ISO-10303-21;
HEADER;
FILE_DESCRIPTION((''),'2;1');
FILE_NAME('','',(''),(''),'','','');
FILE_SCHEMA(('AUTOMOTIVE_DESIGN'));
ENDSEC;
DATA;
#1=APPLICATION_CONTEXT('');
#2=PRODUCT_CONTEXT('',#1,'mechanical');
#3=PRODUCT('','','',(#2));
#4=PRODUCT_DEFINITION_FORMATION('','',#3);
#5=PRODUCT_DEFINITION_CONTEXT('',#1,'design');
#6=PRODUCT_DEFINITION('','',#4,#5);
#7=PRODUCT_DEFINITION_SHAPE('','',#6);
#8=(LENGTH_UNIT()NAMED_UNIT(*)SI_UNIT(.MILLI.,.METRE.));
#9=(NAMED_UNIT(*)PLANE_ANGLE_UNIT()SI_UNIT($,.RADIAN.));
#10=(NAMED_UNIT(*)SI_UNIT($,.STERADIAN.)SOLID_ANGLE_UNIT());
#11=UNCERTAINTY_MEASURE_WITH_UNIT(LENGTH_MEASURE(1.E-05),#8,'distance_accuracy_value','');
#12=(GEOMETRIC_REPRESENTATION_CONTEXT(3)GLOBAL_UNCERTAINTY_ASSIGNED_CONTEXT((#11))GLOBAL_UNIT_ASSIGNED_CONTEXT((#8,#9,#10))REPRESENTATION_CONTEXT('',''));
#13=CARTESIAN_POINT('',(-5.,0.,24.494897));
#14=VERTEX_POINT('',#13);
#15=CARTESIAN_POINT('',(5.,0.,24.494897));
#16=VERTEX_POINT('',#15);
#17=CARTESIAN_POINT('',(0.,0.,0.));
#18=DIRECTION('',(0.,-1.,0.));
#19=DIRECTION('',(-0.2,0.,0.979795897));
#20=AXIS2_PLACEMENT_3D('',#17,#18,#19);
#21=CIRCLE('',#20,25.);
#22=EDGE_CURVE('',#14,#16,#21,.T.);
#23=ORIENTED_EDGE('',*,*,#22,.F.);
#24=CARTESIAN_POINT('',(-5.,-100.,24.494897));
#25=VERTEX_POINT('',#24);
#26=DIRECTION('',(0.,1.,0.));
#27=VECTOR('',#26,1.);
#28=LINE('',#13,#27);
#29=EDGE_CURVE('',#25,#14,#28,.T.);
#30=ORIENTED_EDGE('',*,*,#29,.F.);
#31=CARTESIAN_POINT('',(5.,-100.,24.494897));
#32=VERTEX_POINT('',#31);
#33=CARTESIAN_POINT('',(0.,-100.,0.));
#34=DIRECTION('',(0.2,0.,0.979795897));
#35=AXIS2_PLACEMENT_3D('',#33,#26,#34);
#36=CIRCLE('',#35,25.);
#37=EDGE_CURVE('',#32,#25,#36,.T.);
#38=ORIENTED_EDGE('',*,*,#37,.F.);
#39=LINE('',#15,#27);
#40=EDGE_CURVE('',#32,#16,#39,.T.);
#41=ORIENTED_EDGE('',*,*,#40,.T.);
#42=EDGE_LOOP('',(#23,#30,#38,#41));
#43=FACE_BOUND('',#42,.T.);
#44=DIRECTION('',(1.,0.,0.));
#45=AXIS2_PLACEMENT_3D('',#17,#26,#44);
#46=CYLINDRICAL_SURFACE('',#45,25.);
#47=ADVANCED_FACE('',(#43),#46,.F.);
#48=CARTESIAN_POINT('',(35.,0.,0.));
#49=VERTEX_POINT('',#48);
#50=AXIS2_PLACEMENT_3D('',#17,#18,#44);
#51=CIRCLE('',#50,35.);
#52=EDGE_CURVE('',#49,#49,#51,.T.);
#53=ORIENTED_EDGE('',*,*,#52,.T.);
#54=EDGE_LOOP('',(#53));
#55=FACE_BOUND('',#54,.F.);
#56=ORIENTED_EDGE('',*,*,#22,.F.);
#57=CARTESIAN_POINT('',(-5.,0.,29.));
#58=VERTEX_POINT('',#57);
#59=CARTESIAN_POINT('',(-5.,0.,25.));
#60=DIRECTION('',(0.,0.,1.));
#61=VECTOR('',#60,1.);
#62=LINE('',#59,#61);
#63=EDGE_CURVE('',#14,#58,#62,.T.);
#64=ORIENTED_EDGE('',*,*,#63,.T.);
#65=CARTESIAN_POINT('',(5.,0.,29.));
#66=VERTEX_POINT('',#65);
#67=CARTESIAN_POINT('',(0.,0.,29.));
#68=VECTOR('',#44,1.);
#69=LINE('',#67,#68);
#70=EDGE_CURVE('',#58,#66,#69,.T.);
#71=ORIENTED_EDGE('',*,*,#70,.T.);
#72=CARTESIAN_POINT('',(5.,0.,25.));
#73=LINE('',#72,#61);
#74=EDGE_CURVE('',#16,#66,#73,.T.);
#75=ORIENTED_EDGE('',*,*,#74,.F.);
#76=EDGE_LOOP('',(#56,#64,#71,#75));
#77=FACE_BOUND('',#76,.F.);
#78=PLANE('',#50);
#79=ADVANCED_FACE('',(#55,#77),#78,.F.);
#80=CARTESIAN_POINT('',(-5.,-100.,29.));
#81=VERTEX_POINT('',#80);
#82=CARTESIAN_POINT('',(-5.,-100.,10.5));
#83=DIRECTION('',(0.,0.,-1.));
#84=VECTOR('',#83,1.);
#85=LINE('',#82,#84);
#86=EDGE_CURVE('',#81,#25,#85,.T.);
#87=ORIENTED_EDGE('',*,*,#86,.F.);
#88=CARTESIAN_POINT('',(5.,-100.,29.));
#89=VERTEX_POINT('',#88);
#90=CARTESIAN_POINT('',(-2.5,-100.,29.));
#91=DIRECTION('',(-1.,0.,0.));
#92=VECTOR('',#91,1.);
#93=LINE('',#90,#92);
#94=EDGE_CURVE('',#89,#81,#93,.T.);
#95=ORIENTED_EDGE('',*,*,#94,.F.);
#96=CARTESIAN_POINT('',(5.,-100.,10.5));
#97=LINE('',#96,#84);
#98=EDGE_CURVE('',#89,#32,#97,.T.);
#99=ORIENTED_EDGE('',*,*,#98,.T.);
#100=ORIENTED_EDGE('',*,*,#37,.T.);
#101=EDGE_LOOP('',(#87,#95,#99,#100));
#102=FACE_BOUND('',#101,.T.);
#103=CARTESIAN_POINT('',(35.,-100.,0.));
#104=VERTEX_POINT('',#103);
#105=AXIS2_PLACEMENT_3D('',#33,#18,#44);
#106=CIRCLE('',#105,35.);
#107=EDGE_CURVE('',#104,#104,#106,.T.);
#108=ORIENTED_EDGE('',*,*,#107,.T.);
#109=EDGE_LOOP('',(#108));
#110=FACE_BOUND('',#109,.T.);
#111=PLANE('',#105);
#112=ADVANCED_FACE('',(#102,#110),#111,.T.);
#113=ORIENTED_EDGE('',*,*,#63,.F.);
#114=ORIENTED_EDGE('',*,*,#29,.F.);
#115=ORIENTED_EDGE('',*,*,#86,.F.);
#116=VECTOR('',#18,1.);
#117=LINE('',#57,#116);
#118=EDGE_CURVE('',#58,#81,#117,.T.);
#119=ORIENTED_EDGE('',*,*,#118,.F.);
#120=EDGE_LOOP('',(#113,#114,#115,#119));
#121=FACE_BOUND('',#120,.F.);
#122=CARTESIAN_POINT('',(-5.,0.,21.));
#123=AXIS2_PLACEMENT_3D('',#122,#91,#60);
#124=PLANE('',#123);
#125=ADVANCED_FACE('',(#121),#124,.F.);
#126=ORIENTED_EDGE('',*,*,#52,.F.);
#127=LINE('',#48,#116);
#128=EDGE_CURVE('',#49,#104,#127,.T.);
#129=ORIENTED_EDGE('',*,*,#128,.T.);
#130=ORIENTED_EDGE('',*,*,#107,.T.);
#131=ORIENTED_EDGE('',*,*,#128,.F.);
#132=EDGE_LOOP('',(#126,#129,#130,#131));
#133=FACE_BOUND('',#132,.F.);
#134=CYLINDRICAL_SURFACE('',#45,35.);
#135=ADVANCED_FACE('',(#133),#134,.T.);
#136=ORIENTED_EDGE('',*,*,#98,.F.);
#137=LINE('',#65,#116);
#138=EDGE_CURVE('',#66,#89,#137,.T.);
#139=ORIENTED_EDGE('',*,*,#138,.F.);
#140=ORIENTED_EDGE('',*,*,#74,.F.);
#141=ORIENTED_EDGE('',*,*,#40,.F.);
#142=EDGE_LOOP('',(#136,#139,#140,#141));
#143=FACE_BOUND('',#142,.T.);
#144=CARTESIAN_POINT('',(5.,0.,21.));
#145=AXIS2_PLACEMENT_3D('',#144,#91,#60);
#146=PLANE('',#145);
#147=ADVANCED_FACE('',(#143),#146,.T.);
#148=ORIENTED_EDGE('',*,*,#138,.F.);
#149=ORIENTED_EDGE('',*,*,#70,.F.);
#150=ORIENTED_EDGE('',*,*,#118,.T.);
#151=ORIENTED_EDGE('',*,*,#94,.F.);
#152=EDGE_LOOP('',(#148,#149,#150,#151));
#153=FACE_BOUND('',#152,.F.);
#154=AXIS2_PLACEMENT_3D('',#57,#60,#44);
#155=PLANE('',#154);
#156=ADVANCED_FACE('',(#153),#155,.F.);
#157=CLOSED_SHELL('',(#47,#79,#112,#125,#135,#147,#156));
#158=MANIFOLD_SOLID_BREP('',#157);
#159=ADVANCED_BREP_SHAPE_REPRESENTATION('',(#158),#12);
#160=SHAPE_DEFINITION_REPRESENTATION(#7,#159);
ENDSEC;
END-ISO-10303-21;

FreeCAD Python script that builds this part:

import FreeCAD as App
import Part
import Sketcher
Q = App.Units.Quantity

doc = App.newDocument("Part")
body = doc.addObject("PartDesign::Body", "Body")

sketch1 = doc.addObject("Sketcher::SketchObject", "Sketch")
body.addObject(sketch1)
sketch1.AttachmentSupport = (doc.XZ_Plane, [""])
sketch1.MapMode = "FlatFace"
sketch1.addGeometry(Part.Circle(App.Vector(0, 0, 0), App.Vector(0, 0, 1), 35), False)
sketch1.addGeometry(Part.Circle(App.Vector(0, 0, 0), App.Vector(0, 0, 1), 25), False)
sketch1.addConstraint(Sketcher.Constraint("Coincident", 0, 3, -1, 1))
sketch1.addConstraint(Sketcher.Constraint("Coincident", 1, 3, -1, 1))
sketch1.addConstraint(Sketcher.Constraint("Diameter", 0, Q("70 mm")))
sketch1.addConstraint(Sketcher.Constraint("Diameter", 1, Q("50 mm")))
pad1 = doc.addObject("PartDesign::Pad", "Pad")
body.addObject(pad1)
pad1.Profile = sketch1
pad1.Length = 100

sketch2 = doc.addObject("Sketcher::SketchObject", "Sketch001")
body.addObject(sketch2)
sketch2.AttachmentSupport = (doc.XZ_Plane, [""])
sketch2.MapMode = "FlatFace"
sketch2.addGeometry(Part.LineSegment(App.Vector(-5, 29, 0), App.Vector(-5, 21, 0)), False)
sketch2.addGeometry(Part.LineSegment(App.Vector(-5, 21, 0), App.Vector(5, 21, 0)), False)
sketch2.addGeometry(Part.LineSegment(App.Vector(5, 21, 0), App.Vector(5, 29, 0)), False)
sketch2.addGeometry(Part.LineSegment(App.Vector(5, 29, 0), App.Vector(-5, 29, 0)), False)
sketch2.addConstraint(Sketcher.Constraint("Coincident", 0, 2, 1, 1))
sketch2.addConstraint(Sketcher.Constraint("Coincident", 1, 2, 2, 1))
sketch2.addConstraint(Sketcher.Constraint("Coincident", 2, 2, 3, 1))
sketch2.addConstraint(Sketcher.Constraint("Coincident", 3, 2, 0, 1))
sketch2.addConstraint(Sketcher.Constraint("Vertical", 0))
sketch2.addConstraint(Sketcher.Constraint("Horizontal", 1))
sketch2.addConstraint(Sketcher.Constraint("Vertical", 2))
sketch2.addConstraint(Sketcher.Constraint("Horizontal", 3))
sketch2.addConstraint(Sketcher.Constraint("DistanceX", 1, 1, 1, 2, Q("10 mm")))
sketch2.addConstraint(Sketcher.Constraint("DistanceY", 0, 2, 0, 1, Q("8 mm")))
sketch2.addConstraint(Sketcher.Constraint("DistanceX", 0, 2, -1, 1, Q("5 mm")))
sketch2.addConstraint(Sketcher.Constraint("DistanceY", -1, 1, 0, 2, Q("21 mm")))
pocket1 = doc.addObject("PartDesign::Pocket", "Pocket")
body.addObject(pocket1)
pocket1.Profile = sketch2
pocket1.Type = "ThroughAll"
pocket1.Reversed = True

doc.recompute()
